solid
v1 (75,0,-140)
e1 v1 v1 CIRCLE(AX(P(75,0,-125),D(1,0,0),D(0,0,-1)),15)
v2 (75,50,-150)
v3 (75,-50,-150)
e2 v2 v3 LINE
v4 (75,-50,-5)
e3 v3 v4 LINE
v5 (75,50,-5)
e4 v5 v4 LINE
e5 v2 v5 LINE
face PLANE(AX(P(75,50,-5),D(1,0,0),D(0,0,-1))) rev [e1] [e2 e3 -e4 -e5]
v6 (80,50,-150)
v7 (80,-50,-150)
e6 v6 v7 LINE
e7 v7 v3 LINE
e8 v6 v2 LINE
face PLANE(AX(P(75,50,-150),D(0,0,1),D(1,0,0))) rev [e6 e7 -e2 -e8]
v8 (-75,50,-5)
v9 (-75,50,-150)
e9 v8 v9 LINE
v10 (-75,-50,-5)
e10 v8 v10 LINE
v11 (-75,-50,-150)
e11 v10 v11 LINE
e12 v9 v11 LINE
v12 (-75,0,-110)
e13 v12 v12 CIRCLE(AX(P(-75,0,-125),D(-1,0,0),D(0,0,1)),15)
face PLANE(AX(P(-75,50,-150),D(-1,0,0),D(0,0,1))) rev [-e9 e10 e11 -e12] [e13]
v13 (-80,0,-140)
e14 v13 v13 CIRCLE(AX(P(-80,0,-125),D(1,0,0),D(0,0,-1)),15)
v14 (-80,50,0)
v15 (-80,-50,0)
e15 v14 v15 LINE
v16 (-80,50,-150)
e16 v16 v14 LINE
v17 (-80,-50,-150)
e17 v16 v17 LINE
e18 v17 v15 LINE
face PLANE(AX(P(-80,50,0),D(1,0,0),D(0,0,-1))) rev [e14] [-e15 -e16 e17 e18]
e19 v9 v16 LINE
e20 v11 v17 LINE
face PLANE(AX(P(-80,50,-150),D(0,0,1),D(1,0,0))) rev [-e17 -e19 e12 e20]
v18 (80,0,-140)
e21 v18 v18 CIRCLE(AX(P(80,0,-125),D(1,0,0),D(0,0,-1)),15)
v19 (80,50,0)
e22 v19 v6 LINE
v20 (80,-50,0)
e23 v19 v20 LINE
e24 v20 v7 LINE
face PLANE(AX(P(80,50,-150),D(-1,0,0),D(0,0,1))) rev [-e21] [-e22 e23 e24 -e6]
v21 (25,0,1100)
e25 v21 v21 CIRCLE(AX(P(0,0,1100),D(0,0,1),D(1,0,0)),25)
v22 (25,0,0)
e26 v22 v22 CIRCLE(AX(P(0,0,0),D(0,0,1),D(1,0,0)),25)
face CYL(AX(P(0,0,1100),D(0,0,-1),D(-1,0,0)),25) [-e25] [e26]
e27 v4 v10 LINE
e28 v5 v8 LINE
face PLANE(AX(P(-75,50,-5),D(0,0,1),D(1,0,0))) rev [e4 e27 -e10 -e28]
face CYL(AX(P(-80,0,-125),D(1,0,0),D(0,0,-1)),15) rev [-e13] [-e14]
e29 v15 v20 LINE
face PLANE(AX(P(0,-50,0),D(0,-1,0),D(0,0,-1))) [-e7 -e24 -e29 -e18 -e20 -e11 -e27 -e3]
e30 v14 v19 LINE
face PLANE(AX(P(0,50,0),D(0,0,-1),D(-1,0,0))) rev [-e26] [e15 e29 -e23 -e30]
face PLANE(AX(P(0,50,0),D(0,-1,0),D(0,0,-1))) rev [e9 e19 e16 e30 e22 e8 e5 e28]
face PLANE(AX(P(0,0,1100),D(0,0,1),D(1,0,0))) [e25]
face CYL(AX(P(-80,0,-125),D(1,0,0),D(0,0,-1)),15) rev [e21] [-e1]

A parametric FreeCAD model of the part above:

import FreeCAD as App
import Part
import Sketcher

doc = App.newDocument("Part")
params = doc.addObject("Spreadsheet::Sheet", "Params")
for row, (alias, value) in enumerate([
    ("sketch1_width", "160 mm"),
    ("sketch1_width2", "5 mm"),
    ("sketch1_height", "145 mm"),
    ("pad1_length", "100 mm"),
    ("sketch2_diameter", "50 mm"),
    ("pad2_length", "1100 mm"),
    ("sketch3_diameter", "30 mm"),
], start=1):
    params.set(f"A{row}", alias)
    params.set(f"B{row}", "=" + value)
    params.setAlias(f"B{row}", alias)

body = doc.addObject("PartDesign::Body", "Body")

# Sketch on XZ plane
sketch1 = doc.addObject("Sketcher::SketchObject", "Sketch")
body.addObject(sketch1)
sketch1.AttachmentSupport = (doc.XZ_Plane, [""])
sketch1.MapMode = "FlatFace"
sketch1.addGeometry([
    Part.LineSegment(App.Vector(-80, 0, 0), App.Vector(80, 0, 0)),  # 0
    Part.LineSegment(App.Vector(80, 0, 0), App.Vector(80, -150, 0)),  # 1
    Part.LineSegment(App.Vector(80, -150, 0), App.Vector(75, -150, 0)),  # 2
    Part.LineSegment(App.Vector(75, -150, 0), App.Vector(75, -5, 0)),  # 3
    Part.LineSegment(App.Vector(75, -5, 0), App.Vector(-75, -5, 0)),  # 4
    Part.LineSegment(App.Vector(-75, -5, 0), App.Vector(-75, -150, 0)),  # 5
    Part.LineSegment(App.Vector(-75, -150, 0), App.Vector(-80, -150, 0)),  # 6
    Part.LineSegment(App.Vector(-80, -150, 0), App.Vector(-80, 0, 0)),  # 7
], False)
sketch1.addConstraint([
    Sketcher.Constraint("Coincident", 0, 2, 1, 1),
    Sketcher.Constraint("Coincident", 1, 2, 2, 1),
    Sketcher.Constraint("Coincident", 2, 2, 3, 1),
    Sketcher.Constraint("Coincident", 3, 2, 4, 1),
    Sketcher.Constraint("Coincident", 4, 2, 5, 1),
    Sketcher.Constraint("Coincident", 5, 2, 6, 1),
    Sketcher.Constraint("Coincident", 6, 2, 7, 1),
    Sketcher.Constraint("Coincident", 7, 2, 0, 1),
    Sketcher.Constraint("Horizontal", 0),
    Sketcher.Constraint("Vertical", 1),
    Sketcher.Constraint("Horizontal", 2),
    Sketcher.Constraint("Vertical", 3),
    Sketcher.Constraint("Horizontal", 4),
    Sketcher.Constraint("Vertical", 5),
    Sketcher.Constraint("Horizontal", 6),
    Sketcher.Constraint("Vertical", 7),
    Sketcher.Constraint("Symmetric", 0, 2, 7, 2, -1, 1),
    Sketcher.Constraint("Symmetric", 2, 2, 5, 2, -2),
    Sketcher.Constraint("Equal", 4, 1),
    Sketcher.Constraint("DistanceX", 0, 1, 0, 2, 160.0),
    Sketcher.Constraint("DistanceX", 2, 2, 2, 1, 5.0),
    Sketcher.Constraint("DistanceY", 3, 1, 3, 2, 145.0),
])
sketch1.setExpression("Constraints[19]", "Params.sketch1_width")
sketch1.setExpression("Constraints[20]", "Params.sketch1_width2")
sketch1.setExpression("Constraints[21]", "Params.sketch1_height")
pad1 = doc.addObject("PartDesign::Pad", "Pad")
body.addObject(pad1)
pad1.Profile = sketch1
pad1.setExpression("Length", "Params.pad1_length")
pad1.Midplane = True

# Sketch on XY plane
sketch2 = doc.addObject("Sketcher::SketchObject", "Sketch001")
body.addObject(sketch2)
sketch2.AttachmentSupport = (doc.XY_Plane, [""])
sketch2.MapMode = "FlatFace"
sketch2.addGeometry(Part.Circle(App.Vector(0, 0, 0), App.Vector(0, 0, 1), 25), False)
sketch2.addConstraint([
    Sketcher.Constraint("Coincident", 0, 3, -1, 1),
    Sketcher.Constraint("Diameter", 0, 50.0),
])
sketch2.setExpression("Constraints[1]", "Params.sketch2_diameter")
pad2 = doc.addObject("PartDesign::Pad", "Pad001")
body.addObject(pad2)
pad2.Profile = sketch2
pad2.setExpression("Length", "Params.pad2_length")

# Sketch on YZ plane
sketch3 = doc.addObject("Sketcher::SketchObject", "Sketch002")
body.addObject(sketch3)
sketch3.AttachmentSupport = (doc.YZ_Plane, [""])
sketch3.MapMode = "FlatFace"
sketch3.AttachmentOffset = App.Placement(App.Vector(0, 0, 80), App.Rotation())
sketch3.addGeometry(Part.Circle(App.Vector(0, -125, 0), App.Vector(0, 0, 1), 15), False)
sketch3.addConstraint([
    Sketcher.Constraint("PointOnObject", 0, 3, -2),
    Sketcher.Constraint("Diameter", 0, 30.0),
    Sketcher.Constraint("DistanceY", 0, 3, -1, 1, 125.0),
])
sketch3.setExpression("Constraints[1]", "Params.sketch3_diameter")
pocket1 = doc.addObject("PartDesign::Pocket", "Pocket")
body.addObject(pocket1)
pocket1.Profile = sketch3
pocket1.Type = "ThroughAll"

doc.recompute()
